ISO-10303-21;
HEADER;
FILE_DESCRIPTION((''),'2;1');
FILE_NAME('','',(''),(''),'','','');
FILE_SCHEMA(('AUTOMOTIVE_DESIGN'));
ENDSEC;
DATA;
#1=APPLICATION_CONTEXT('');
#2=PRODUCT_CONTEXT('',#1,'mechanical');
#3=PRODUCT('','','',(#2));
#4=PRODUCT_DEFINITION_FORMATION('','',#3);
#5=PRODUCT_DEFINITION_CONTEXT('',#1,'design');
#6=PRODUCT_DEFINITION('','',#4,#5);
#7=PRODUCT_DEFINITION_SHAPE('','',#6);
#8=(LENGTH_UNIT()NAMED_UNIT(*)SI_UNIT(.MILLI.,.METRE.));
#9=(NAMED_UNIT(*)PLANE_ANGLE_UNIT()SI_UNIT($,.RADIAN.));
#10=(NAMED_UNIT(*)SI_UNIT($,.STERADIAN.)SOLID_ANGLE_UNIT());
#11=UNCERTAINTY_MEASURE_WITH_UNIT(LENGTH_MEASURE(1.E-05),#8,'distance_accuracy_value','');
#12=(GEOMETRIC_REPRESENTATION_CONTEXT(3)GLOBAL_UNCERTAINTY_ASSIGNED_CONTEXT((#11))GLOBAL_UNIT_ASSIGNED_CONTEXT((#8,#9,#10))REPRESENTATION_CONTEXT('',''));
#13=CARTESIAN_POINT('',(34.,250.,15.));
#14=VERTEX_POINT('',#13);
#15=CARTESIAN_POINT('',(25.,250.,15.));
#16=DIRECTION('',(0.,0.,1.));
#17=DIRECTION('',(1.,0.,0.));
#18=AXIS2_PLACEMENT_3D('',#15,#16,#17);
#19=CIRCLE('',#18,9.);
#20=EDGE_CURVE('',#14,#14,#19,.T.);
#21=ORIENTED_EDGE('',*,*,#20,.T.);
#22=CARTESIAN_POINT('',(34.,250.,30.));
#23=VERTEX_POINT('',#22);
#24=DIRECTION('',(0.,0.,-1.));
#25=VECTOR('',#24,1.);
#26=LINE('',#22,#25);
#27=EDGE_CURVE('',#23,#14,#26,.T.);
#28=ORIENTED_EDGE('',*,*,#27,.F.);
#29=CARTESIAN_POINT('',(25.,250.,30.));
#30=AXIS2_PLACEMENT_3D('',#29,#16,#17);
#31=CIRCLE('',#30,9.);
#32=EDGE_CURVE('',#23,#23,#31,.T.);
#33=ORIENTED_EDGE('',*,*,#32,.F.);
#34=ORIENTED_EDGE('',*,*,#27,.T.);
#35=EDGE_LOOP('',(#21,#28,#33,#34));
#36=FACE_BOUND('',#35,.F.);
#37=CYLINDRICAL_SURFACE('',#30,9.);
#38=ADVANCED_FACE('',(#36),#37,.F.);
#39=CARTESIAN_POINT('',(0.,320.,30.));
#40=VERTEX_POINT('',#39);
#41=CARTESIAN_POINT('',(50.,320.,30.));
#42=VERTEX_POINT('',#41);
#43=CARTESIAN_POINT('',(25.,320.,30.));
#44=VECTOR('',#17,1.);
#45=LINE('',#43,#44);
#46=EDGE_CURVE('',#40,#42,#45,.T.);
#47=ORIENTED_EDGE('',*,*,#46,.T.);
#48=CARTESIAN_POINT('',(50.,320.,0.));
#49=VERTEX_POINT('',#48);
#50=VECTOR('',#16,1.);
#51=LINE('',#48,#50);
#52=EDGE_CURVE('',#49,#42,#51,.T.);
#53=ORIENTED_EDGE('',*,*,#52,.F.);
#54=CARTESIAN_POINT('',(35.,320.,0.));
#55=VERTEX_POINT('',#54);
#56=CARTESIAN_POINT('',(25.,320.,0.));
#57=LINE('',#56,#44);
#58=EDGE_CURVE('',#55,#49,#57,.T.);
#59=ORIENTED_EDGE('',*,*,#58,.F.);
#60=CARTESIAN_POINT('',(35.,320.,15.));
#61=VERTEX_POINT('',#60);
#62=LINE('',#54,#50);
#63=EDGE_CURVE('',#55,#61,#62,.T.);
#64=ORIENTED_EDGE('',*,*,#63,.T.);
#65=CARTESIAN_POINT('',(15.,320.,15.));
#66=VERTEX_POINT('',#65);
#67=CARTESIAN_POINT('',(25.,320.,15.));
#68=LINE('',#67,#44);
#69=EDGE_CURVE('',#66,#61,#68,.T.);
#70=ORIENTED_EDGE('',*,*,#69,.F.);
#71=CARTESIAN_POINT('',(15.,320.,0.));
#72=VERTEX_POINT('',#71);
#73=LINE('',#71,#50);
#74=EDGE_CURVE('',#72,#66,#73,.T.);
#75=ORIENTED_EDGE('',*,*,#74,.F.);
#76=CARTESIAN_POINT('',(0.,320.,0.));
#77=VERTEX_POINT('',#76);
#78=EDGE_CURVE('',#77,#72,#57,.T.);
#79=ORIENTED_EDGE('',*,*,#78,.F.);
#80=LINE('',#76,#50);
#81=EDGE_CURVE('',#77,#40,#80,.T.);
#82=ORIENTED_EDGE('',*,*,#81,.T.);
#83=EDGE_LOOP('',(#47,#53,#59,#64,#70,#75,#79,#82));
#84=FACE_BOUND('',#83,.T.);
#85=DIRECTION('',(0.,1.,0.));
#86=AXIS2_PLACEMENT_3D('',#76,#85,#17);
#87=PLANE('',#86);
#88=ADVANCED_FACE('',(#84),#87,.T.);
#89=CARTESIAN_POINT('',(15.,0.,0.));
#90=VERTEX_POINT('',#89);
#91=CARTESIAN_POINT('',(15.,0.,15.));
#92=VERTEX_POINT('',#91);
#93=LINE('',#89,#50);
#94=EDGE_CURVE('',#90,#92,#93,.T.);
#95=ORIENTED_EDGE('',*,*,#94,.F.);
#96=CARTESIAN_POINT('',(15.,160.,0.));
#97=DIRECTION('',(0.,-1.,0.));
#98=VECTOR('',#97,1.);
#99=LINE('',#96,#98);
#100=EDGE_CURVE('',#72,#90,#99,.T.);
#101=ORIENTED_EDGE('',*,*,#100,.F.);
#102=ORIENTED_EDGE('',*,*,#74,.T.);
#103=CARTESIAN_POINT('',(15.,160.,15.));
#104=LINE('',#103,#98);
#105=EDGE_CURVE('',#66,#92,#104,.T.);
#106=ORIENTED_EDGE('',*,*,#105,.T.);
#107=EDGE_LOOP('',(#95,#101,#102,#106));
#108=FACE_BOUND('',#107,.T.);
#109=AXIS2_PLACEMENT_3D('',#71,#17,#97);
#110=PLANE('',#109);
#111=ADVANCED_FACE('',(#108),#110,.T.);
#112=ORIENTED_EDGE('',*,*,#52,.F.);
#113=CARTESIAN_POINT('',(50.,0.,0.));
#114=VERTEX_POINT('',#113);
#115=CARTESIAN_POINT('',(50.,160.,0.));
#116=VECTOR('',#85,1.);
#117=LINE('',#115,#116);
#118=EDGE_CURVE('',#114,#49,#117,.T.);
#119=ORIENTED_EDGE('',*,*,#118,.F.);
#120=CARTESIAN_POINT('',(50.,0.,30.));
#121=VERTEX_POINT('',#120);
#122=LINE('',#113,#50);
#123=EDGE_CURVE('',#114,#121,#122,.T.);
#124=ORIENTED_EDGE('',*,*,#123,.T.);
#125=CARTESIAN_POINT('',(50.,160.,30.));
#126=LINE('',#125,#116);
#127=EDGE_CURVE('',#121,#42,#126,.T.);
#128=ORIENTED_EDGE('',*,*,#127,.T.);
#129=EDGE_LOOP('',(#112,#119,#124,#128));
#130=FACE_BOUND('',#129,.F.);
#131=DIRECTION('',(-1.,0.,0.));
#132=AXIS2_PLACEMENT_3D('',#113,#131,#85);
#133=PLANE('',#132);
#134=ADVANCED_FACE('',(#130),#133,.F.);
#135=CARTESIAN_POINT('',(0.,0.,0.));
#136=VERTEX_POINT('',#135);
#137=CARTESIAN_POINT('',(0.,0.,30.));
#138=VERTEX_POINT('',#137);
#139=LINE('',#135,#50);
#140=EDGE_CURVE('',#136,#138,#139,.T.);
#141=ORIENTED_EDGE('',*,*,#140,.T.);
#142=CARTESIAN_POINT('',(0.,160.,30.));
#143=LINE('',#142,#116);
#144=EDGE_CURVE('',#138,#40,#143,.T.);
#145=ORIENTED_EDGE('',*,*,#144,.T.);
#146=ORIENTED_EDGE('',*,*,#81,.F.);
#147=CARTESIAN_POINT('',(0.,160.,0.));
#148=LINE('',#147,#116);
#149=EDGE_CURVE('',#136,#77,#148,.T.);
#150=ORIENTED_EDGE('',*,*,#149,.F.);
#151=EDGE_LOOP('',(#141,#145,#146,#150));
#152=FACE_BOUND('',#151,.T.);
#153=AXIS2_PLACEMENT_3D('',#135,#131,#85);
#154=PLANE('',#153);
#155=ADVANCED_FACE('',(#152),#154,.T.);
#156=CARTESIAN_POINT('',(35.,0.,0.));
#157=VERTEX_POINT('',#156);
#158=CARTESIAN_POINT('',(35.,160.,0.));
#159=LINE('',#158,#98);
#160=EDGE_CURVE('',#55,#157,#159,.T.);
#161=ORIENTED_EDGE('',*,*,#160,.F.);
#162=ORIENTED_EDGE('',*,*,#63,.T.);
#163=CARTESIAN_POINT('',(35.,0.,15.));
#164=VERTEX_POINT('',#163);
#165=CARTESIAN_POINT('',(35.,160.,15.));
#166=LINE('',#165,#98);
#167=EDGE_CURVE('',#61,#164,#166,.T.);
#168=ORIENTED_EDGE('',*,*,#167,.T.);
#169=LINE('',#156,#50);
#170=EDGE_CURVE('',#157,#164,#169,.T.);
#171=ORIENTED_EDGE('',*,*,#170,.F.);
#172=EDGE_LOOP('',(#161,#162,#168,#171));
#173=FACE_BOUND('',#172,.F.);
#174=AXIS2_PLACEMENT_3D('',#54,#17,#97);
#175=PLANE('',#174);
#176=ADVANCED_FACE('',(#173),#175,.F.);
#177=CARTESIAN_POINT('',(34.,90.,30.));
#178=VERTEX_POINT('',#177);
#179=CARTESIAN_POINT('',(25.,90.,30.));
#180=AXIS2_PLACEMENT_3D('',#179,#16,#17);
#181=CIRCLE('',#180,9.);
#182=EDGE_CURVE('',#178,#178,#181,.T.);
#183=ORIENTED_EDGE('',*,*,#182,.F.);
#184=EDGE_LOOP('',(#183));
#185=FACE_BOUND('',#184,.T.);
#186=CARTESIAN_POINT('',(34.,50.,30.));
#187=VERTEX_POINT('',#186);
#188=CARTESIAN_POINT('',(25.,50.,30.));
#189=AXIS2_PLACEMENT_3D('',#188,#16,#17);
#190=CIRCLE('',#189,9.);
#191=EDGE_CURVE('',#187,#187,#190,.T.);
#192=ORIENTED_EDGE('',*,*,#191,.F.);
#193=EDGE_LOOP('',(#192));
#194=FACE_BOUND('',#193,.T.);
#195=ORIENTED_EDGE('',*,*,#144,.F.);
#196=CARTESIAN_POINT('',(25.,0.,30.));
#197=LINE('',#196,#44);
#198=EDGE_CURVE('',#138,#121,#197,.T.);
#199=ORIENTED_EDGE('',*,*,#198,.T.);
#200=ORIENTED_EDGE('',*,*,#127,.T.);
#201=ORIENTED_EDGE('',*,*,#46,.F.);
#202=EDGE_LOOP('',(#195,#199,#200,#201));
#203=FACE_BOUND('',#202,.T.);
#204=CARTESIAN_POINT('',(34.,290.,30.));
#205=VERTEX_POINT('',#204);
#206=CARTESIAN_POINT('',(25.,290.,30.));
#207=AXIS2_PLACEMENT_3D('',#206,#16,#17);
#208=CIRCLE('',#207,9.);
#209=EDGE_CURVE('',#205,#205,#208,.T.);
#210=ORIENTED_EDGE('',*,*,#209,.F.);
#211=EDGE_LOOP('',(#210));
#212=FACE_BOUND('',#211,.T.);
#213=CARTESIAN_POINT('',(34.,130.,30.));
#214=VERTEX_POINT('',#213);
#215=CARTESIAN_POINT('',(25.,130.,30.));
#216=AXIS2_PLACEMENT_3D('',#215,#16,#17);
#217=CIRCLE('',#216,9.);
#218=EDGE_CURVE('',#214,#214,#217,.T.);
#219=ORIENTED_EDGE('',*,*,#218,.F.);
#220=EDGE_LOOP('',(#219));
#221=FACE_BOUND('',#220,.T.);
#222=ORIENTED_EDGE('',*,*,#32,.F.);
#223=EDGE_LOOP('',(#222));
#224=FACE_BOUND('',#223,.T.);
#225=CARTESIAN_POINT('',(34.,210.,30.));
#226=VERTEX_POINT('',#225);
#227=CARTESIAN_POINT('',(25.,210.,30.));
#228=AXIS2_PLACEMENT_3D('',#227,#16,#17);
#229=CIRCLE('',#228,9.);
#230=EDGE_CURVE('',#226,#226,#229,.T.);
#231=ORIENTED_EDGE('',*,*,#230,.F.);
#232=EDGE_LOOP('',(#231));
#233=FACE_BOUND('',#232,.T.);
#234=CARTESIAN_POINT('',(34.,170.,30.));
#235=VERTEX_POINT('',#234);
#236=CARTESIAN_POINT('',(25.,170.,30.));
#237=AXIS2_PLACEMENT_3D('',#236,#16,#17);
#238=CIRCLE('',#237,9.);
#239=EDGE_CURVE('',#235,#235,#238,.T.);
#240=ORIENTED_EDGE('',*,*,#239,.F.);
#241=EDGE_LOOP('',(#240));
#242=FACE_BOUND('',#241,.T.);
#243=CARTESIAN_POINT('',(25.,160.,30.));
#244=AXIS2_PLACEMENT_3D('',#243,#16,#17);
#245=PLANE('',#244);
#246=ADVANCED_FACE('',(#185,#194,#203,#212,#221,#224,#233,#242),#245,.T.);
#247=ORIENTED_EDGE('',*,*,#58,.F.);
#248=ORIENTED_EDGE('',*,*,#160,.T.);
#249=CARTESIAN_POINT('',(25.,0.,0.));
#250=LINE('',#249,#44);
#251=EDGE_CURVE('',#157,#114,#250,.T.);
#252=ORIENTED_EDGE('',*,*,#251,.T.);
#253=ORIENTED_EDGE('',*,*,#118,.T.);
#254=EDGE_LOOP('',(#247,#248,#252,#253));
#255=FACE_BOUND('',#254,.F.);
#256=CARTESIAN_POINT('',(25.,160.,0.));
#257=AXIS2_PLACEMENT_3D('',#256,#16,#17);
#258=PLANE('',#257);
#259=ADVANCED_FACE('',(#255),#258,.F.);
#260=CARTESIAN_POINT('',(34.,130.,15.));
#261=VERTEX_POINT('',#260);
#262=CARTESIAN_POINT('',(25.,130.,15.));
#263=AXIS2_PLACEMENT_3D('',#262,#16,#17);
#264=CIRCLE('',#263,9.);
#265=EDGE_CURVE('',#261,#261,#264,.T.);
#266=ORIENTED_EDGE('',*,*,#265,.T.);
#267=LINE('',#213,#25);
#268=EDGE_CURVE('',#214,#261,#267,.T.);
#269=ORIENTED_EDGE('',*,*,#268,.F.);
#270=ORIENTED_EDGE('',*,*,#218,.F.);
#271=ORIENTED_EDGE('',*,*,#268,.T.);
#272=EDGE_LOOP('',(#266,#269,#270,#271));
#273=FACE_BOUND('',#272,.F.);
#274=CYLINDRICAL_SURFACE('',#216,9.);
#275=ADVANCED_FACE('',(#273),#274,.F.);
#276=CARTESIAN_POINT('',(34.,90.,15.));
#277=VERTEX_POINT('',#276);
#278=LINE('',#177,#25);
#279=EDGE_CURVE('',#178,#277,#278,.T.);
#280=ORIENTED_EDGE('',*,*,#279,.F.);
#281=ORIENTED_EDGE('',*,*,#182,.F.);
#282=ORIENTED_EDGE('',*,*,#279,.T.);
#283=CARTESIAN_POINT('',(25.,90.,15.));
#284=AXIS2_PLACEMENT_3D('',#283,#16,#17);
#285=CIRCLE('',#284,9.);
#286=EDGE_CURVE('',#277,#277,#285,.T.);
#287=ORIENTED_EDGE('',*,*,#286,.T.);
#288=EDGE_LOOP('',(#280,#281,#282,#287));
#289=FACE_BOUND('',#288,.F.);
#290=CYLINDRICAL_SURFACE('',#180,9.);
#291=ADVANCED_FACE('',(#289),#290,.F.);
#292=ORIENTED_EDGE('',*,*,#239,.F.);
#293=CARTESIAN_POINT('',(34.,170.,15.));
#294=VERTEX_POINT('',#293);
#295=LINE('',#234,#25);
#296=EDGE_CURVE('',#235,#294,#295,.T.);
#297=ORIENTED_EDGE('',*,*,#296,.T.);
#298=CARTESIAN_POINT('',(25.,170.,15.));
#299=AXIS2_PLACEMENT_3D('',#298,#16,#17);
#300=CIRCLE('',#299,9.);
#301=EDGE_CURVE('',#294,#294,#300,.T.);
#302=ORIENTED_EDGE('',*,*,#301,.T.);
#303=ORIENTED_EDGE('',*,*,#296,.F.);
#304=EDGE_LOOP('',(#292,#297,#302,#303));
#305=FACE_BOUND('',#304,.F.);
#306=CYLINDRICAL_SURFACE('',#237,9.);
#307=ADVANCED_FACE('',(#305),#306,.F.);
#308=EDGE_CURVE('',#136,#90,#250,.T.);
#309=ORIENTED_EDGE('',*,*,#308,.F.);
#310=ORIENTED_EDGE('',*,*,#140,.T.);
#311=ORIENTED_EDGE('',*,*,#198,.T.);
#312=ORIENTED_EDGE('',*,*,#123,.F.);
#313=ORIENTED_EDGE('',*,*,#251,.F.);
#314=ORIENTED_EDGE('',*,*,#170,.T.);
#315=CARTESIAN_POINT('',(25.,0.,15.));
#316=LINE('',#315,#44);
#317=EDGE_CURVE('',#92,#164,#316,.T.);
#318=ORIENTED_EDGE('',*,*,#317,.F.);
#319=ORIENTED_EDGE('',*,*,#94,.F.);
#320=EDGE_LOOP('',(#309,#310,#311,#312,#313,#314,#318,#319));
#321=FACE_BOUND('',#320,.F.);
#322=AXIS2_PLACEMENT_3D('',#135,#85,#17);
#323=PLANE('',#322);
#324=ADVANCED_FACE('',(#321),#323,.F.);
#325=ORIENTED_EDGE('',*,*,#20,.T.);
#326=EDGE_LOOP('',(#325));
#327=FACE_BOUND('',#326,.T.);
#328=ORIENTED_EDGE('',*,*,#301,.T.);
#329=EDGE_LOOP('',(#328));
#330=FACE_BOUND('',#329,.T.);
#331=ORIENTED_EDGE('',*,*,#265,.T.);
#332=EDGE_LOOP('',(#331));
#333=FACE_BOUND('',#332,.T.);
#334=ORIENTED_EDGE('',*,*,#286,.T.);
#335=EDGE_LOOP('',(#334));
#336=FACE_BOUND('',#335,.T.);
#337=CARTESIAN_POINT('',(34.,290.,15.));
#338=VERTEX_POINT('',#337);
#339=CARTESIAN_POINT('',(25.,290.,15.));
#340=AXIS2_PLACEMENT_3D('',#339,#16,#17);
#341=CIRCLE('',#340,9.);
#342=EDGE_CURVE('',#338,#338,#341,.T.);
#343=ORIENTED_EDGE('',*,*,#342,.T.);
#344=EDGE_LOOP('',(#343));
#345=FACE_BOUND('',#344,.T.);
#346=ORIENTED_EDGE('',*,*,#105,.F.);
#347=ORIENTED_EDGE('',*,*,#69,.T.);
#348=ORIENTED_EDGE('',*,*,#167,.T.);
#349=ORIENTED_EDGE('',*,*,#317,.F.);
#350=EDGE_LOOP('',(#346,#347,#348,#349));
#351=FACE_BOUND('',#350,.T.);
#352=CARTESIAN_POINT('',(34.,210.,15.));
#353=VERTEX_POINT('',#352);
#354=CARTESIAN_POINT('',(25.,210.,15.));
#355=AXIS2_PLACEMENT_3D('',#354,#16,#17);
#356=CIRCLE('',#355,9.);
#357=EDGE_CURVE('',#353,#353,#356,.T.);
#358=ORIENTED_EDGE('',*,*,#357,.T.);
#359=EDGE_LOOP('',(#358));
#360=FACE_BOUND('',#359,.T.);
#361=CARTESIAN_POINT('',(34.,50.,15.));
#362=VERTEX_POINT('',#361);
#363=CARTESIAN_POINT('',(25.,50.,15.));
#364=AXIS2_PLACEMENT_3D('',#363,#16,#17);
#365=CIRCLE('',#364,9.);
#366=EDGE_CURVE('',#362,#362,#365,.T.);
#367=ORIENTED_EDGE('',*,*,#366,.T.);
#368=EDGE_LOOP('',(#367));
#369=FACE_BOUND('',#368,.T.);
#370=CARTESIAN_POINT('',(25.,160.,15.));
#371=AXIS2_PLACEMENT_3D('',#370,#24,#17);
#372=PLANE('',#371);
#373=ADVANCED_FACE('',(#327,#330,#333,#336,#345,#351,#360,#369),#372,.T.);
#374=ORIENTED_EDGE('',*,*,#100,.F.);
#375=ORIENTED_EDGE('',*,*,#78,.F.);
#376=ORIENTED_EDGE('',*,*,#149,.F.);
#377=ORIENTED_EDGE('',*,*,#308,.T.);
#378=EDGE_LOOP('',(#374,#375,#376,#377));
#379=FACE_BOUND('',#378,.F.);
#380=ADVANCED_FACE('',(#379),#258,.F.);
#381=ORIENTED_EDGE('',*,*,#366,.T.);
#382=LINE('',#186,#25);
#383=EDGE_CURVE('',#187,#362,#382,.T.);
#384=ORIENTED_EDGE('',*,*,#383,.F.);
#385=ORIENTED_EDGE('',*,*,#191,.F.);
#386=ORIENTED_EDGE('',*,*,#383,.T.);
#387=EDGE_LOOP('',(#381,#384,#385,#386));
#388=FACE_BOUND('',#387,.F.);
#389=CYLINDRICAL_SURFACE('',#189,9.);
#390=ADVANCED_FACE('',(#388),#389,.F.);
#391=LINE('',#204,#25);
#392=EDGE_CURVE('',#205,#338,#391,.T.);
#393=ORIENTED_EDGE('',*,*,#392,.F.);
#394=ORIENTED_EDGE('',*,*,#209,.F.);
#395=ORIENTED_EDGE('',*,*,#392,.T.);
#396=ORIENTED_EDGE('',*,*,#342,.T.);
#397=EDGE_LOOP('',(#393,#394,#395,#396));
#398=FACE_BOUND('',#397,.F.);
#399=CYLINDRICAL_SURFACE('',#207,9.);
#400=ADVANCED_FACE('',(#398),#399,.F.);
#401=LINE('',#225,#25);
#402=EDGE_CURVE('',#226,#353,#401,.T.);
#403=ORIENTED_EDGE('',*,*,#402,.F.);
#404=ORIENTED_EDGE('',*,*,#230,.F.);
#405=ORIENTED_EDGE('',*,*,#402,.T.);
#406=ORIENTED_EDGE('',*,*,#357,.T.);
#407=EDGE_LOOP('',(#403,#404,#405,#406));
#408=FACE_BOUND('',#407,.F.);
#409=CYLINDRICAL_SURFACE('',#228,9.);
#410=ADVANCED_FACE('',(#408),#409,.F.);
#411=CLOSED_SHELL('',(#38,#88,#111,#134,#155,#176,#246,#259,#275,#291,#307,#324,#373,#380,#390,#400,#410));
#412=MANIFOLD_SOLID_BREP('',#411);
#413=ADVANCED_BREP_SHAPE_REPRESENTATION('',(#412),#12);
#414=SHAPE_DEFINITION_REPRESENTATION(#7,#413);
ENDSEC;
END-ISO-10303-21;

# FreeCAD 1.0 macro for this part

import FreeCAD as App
import Part
import Sketcher
Q = App.Units.Quantity


def add_polygon(sketch, points):
    """Adds a closed chain of lines whose ends are joined by coincident constraints."""
    first, n = sketch.GeometryCount, len(points)
    for a, b in zip(points, points[1:] + points[:1]):
        sketch.addGeometry(Part.LineSegment(App.Vector(*a, 0), App.Vector(*b, 0)), False)
    for i in range(n):
        sketch.addConstraint(Sketcher.Constraint("Coincident", first + i, 2, first + (i + 1) % n, 1))

doc = App.newDocument("Part")
params = doc.addObject("Spreadsheet::Sheet", "Params")
for row, (alias, value) in enumerate([
    ("sketch1_width", "50 mm"),
    ("sketch1_height", "320 mm"),
    ("pad1_length", "30 mm"),
    ("sketch2_width", "20 mm"),
    ("sketch2_height", "320 mm"),
    ("pocket1_length", "15 mm"),
    ("sketch3_diameter", "18 mm"),
], start=1):
    params.set(f"A{row}", alias)
    params.set(f"B{row}", "=" + value)
    params.setAlias(f"B{row}", alias)

body = doc.addObject("PartDesign::Body", "Body")

sketch1 = doc.addObject("Sketcher::SketchObject", "Sketch")
body.addObject(sketch1)
sketch1.AttachmentSupport = (doc.XY_Plane, [""])
sketch1.MapMode = "FlatFace"
add_polygon(sketch1, [(0, 320), (0, 0), (50, 0), (50, 320)])
sketch1.addConstraint([
    Sketcher.Constraint("Vertical", 0),
    Sketcher.Constraint("Horizontal", 1),
    Sketcher.Constraint("Vertical", 2),
    Sketcher.Constraint("Horizontal", 3),
    Sketcher.Constraint("Coincident", 0, 2, -1, 1),
    Sketcher.Constraint("DistanceX", 1, 1, 1, 2, Q("50 mm")),
    Sketcher.Constraint("DistanceY", 0, 2, 0, 1, Q("320 mm")),
])
sketch1.setExpression("Constraints[9]", "Params.sketch1_width")
sketch1.setExpression("Constraints[10]", "Params.sketch1_height")
pad1 = doc.addObject("PartDesign::Pad", "Pad")
body.addObject(pad1)
pad1.Profile = sketch1
pad1.setExpression("Length", "Params.pad1_length")

sketch2 = doc.addObject("Sketcher::SketchObject", "Sketch001")
body.addObject(sketch2)
sketch2.AttachmentSupport = (doc.XY_Plane, [""])
sketch2.MapMode = "FlatFace"
add_polygon(sketch2, [(15, 0), (15, 320), (35, 320), (35, 0)])
sketch2.addConstraint([
    Sketcher.Constraint("Vertical", 0),
    Sketcher.Constraint("Horizontal", 1),
    Sketcher.Constraint("Vertical", 2),
    Sketcher.Constraint("Horizontal", 3),
    Sketcher.Constraint("PointOnObject", 2, 2, -1),
    Sketcher.Constraint("DistanceX", 1, 1, 1, 2, Q("20 mm")),
    Sketcher.Constraint("DistanceY", 0, 1, 0, 2, Q("320 mm")),
    Sketcher.Constraint("DistanceX", -1, 1, 0, 2, Q("15 mm")),
])
sketch2.setExpression("Constraints[9]", "Params.sketch2_width")
sketch2.setExpression("Constraints[10]", "Params.sketch2_height")
pocket1 = doc.addObject("PartDesign::Pocket", "Pocket")
body.addObject(pocket1)
pocket1.Profile = sketch2
pocket1.setExpression("Length", "Params.pocket1_length")
pocket1.Reversed = True

sketch3 = doc.addObject("Sketcher::SketchObject", "Sketch002")
body.addObject(sketch3)
sketch3.AttachmentSupport = (doc.XY_Plane, [""])
sketch3.MapMode = "FlatFace"
sketch3.AttachmentOffset = App.Placement(App.Vector(0, 0, 30), App.Rotation())
sketch3.addGeometry([
    Part.Circle(App.Vector(25, 50, 0), App.Vector(0, 0, 1), 9),
    Part.Circle(App.Vector(25, 90, 0), App.Vector(0, 0, 1), 9),
    Part.Circle(App.Vector(25, 130, 0), App.Vector(0, 0, 1), 9),
    Part.Circle(App.Vector(25, 170, 0), App.Vector(0, 0, 1), 9),
    Part.Circle(App.Vector(25, 210, 0), App.Vector(0, 0, 1), 9),
    Part.Circle(App.Vector(25, 250, 0), App.Vector(0, 0, 1), 9),
    Part.Circle(App.Vector(25, 290, 0), App.Vector(0, 0, 1), 9),
], False)
sketch3.addConstraint([
    Sketcher.Constraint("Equal", 0, 1),
    Sketcher.Constraint("Equal", 1, 2),
    Sketcher.Constraint("Equal", 2, 3),
    Sketcher.Constraint("Equal", 3, 4),
    Sketcher.Constraint("Equal", 4, 5),
    Sketcher.Constraint("Equal", 5, 6),
    Sketcher.Constraint("Vertical", 0, 3, 1, 3),
    Sketcher.Constraint("Vertical", 1, 3, 2, 3),
    Sketcher.Constraint("Vertical", 2, 3, 3, 3),
    Sketcher.Constraint("Vertical", 3, 3, 4, 3),
    Sketcher.Constraint("Vertical", 4, 3, 5, 3),
    Sketcher.Constraint("Vertical", 5, 3, 6, 3),
    Sketcher.Constraint("Diameter", 0, Q("18 mm")),
    Sketcher.Constraint("DistanceX", -1, 1, 0, 3, Q("25 mm")),
    Sketcher.Constraint("DistanceY", -1, 1, 0, 3, Q("50 mm")),
    Sketcher.Constraint("DistanceY", -1, 1, 1, 3, Q("90 mm")),
    Sketcher.Constraint("DistanceY", -1, 1, 2, 3, Q("130 mm")),
    Sketcher.Constraint("DistanceY", -1, 1, 3, 3, Q("170 mm")),
    Sketcher.Constraint("DistanceY", -1, 1, 4, 3, Q("210 mm")),
    Sketcher.Constraint("DistanceY", -1, 1, 5, 3, Q("250 mm")),
    Sketcher.Constraint("DistanceY", -1, 1, 6, 3, Q("290 mm")),
])
sketch3.setExpression("Constraints[12]", "Params.sketch3_diameter")
pocket2 = doc.addObject("PartDesign::Pocket", "Pocket001")
body.addObject(pocket2)
pocket2.Profile = sketch3
pocket2.Type = "ThroughAll"

doc.recompute()
